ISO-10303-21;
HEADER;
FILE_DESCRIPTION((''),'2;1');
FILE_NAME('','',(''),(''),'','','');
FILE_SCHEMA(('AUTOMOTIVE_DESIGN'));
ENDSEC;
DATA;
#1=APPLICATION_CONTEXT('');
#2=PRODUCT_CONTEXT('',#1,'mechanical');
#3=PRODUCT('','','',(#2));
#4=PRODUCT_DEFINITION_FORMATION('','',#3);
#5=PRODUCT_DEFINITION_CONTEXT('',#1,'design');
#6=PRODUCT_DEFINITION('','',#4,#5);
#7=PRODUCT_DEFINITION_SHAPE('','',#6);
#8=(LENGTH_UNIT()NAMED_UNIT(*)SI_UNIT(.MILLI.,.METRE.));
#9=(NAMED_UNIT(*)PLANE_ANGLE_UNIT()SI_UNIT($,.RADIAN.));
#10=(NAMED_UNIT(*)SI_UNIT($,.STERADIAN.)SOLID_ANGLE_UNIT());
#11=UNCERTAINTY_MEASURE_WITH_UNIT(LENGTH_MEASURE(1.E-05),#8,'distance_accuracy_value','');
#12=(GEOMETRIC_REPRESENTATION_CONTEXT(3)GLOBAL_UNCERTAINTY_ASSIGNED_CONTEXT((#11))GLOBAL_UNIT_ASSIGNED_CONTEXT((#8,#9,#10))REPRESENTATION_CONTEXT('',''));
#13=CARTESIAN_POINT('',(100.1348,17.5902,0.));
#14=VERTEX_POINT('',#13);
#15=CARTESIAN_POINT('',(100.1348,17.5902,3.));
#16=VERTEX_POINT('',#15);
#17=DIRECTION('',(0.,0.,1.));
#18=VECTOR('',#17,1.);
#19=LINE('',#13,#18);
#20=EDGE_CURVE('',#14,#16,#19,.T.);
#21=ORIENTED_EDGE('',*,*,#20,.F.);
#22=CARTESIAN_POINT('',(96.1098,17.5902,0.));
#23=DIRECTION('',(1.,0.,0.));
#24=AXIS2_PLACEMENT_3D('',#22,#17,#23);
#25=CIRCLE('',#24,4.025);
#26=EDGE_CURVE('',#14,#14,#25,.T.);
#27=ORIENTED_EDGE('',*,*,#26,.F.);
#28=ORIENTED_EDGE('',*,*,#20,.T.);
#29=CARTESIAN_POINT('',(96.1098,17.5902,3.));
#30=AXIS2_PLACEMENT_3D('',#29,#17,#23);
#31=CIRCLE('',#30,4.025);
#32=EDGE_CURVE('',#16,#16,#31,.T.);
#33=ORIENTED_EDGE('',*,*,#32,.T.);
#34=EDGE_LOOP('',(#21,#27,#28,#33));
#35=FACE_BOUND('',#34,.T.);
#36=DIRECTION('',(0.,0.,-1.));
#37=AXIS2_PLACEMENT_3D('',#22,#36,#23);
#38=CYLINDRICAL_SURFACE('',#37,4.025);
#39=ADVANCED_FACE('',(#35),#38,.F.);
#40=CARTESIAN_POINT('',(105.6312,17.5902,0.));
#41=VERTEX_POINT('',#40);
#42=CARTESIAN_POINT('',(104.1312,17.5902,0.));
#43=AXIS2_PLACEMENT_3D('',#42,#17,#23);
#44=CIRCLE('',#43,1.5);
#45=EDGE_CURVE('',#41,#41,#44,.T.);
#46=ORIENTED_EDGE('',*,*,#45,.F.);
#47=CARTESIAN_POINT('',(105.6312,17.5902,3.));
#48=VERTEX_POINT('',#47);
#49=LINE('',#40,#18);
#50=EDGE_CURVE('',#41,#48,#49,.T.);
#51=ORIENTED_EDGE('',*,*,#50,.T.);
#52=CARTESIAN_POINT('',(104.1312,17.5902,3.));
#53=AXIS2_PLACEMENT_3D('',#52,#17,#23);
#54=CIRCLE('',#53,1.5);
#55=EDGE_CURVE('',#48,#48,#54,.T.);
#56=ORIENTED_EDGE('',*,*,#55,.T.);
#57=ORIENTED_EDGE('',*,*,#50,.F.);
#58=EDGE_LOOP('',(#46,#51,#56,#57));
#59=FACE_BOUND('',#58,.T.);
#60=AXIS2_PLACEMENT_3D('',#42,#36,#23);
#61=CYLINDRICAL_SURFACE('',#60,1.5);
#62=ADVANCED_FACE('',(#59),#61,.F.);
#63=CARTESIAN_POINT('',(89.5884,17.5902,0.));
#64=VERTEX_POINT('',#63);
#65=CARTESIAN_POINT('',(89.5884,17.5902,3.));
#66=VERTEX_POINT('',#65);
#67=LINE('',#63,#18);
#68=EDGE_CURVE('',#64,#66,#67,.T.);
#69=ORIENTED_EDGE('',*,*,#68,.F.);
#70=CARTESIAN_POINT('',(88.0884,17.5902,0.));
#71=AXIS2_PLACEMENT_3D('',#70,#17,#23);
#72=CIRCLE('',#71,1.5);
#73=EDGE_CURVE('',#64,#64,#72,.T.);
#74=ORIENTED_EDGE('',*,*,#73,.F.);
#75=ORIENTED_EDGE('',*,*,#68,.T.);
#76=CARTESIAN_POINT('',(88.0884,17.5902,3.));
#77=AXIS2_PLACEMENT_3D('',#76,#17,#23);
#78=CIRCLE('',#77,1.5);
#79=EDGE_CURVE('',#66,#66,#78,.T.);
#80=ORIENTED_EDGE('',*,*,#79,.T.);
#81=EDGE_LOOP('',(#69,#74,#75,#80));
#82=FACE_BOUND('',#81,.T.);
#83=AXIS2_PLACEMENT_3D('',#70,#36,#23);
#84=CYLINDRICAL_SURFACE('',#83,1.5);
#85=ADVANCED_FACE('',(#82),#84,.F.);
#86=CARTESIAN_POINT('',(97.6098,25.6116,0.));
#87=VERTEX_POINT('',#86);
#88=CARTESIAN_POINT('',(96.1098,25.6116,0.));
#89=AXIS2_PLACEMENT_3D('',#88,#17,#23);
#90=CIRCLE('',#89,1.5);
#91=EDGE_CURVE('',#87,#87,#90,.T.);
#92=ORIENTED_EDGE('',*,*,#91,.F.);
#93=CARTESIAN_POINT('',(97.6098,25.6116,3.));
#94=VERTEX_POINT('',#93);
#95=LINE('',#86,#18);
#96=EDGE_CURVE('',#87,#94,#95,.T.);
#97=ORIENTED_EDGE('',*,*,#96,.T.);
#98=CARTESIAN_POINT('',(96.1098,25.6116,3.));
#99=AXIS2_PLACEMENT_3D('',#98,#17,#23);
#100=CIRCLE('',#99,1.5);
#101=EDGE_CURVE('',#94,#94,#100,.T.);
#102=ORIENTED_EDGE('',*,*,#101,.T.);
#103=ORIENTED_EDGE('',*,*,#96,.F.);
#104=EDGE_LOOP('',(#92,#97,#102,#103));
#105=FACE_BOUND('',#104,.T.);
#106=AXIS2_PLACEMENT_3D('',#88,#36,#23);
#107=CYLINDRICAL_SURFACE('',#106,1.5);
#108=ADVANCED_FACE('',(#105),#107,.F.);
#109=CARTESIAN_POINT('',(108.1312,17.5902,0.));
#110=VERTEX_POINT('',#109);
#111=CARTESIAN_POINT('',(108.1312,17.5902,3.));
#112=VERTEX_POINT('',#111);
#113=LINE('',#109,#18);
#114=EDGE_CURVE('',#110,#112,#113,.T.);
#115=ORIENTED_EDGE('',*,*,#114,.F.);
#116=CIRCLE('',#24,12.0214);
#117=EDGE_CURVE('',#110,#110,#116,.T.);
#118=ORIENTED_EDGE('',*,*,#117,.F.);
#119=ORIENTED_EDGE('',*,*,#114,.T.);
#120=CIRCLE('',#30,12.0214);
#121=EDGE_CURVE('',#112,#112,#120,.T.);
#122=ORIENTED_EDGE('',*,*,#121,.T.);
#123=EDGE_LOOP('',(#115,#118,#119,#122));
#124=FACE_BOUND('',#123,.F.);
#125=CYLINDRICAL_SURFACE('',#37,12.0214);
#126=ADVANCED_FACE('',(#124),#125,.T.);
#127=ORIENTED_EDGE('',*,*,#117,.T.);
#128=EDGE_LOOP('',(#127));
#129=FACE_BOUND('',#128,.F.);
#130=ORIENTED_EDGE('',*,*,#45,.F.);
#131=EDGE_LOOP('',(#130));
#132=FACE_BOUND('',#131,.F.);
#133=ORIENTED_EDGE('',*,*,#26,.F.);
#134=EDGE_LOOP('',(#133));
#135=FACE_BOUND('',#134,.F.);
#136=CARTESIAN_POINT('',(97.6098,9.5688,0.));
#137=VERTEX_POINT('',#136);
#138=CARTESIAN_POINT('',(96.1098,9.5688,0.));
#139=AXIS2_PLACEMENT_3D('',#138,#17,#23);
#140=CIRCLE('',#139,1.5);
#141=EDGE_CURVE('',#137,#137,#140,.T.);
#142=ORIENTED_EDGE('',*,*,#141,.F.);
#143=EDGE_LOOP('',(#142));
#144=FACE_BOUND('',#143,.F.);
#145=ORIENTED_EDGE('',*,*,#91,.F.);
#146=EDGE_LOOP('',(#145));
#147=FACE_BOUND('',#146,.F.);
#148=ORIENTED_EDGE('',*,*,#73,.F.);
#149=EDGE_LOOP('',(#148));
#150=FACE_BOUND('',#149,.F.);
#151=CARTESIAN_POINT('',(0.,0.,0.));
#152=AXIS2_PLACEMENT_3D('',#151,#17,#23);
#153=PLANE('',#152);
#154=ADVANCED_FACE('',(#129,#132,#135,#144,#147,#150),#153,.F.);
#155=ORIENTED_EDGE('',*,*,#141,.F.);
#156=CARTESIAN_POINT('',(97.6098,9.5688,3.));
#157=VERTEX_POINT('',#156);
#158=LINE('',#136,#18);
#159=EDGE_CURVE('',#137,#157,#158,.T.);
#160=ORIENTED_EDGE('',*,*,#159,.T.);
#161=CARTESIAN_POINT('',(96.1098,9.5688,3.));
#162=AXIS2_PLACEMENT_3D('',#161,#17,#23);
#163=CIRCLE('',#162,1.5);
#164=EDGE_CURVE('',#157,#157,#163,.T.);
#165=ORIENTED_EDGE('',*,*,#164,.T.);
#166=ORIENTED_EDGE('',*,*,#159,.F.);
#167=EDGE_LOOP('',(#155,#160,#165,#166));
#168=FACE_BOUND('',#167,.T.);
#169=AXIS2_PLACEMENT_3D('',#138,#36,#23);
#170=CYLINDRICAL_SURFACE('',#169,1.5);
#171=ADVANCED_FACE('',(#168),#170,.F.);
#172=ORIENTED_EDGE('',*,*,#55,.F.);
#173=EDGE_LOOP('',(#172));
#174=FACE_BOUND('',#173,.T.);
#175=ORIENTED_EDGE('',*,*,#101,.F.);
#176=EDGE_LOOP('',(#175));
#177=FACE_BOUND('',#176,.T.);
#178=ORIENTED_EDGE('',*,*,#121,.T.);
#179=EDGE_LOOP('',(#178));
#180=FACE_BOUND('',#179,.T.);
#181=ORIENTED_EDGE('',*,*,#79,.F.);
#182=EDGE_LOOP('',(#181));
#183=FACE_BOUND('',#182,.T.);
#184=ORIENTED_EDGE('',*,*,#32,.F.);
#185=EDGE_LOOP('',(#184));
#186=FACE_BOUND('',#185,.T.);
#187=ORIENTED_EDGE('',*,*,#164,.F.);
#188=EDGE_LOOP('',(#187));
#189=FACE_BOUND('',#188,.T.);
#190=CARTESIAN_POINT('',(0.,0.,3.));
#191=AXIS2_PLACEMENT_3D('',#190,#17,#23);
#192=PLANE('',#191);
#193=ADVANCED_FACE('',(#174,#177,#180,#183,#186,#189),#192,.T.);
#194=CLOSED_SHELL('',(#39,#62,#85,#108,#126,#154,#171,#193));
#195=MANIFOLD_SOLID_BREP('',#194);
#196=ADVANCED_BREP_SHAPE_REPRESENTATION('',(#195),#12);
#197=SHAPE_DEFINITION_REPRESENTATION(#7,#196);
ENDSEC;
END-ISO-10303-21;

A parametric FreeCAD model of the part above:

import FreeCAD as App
import Part
import Sketcher
from FreeCAD import Vector

doc = App.newDocument("Part")
body = doc.addObject("PartDesign::Body", "Body")

sketch1 = body.newObject("Sketcher::SketchObject", "Sketch")
sketch1.AttachmentSupport = (doc.getObject("XY_Plane"), [""])
sketch1.MapMode = "FlatFace"
sketch1.addGeometry(Part.Circle(Vector(96.1, 17.6, 0), Vector(0, 0, 1), 12), False)
sketch1.addGeometry(Part.Circle(Vector(96.1, 9.6, 0), Vector(0, 0, 1), 1.5), False)
sketch1.addGeometry(Part.Circle(Vector(88.1, 17.6, 0), Vector(0, 0, 1), 1.5), False)
sketch1.addGeometry(Part.Circle(Vector(96.1, 17.6, 0), Vector(0, 0, 1), 4), False)
sketch1.addGeometry(Part.Circle(Vector(104.1, 17.6, 0), Vector(0, 0, 1), 1.5), False)
sketch1.addGeometry(Part.Circle(Vector(96.1, 25.6, 0), Vector(0, 0, 1), 1.5), False)
sketch1.addConstraint(Sketcher.Constraint("Coincident", 3, 3, 0, 3))
sketch1.addConstraint(Sketcher.Constraint("Equal", 1, 2))
sketch1.addConstraint(Sketcher.Constraint("Equal", 2, 4))
sketch1.addConstraint(Sketcher.Constraint("Equal", 4, 5))
sketch1.addConstraint(Sketcher.Constraint("Horizontal", 0, 3, 2, 3))
sketch1.addConstraint(Sketcher.Constraint("Horizontal", 3, 3, 4, 3))
sketch1.addConstraint(Sketcher.Constraint("Vertical", 0, 3, 1, 3))
sketch1.addConstraint(Sketcher.Constraint("Vertical", 3, 3, 5, 3))
sketch1.addConstraint(Sketcher.Constraint("Diameter", 3, 8.05))
sketch1.addConstraint(Sketcher.Constraint("Diameter", 1, 3.0))
sketch1.addConstraint(Sketcher.Constraint("Diameter", 0, 24.0428))
sketch1.addConstraint(Sketcher.Constraint("DistanceX", -1, 1, 0, 3, 96.1098))
sketch1.addConstraint(Sketcher.Constraint("DistanceY", -1, 1, 0, 3, 17.5902))
sketch1.addConstraint(Sketcher.Constraint("DistanceY", -1, 1, 1, 3, 9.5688))
sketch1.addConstraint(Sketcher.Constraint("DistanceX", -1, 1, 2, 3, 88.0884))
sketch1.addConstraint(Sketcher.Constraint("DistanceX", -1, 1, 4, 3, 104.1312))
sketch1.addConstraint(Sketcher.Constraint("DistanceY", -1, 1, 5, 3, 25.6116))
pad1 = body.newObject("PartDesign::Pad", "Pad")
pad1.Profile = sketch1
pad1.Length = 3

doc.recompute()
